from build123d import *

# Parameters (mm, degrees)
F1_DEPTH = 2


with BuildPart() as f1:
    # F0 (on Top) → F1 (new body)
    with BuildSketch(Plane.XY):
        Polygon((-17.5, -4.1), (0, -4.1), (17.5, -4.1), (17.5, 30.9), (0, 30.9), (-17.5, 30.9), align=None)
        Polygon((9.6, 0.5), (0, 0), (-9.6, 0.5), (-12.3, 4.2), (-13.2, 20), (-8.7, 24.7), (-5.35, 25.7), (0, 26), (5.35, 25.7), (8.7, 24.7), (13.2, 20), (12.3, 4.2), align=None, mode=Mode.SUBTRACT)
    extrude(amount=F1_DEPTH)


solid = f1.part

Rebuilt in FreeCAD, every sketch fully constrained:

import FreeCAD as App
import Part
import Sketcher

V = App.Vector
Q = App.Units.Quantity


def add_polygon(sketch, points):
    """Adds a closed chain of lines whose ends are joined by coincident constraints."""
    first, n = sketch.GeometryCount, len(points)
    for a, b in zip(points, points[1:] + points[:1]):
        sketch.addGeometry(Part.LineSegment(App.Vector(*a, 0), App.Vector(*b, 0)), False)
    for i in range(n):
        sketch.addConstraint(Sketcher.Constraint("Coincident", first + i, 2, first + (i + 1) % n, 1))

doc = App.newDocument("Part")
body = doc.addObject("PartDesign::Body", "Body")

sketch1 = body.newObject("Sketcher::SketchObject", "Sketch")
sketch1.AttachmentSupport = (doc.getObject("XY_Plane"), [""])
sketch1.MapMode = "FlatFace"
add_polygon(sketch1, [(-17.5, -4.1), (17.5, -4.1), (17.5, 30.9), (-17.5, 30.9)])
add_polygon(sketch1, [(12.3, 4.2), (9.6, 0.5), (0, 0), (-9.6, 0.5), (-12.3, 4.2), (-13.2, 20), (-8.7, 24.7), (-5.3, 25.7), (0, 26), (5.3, 25.7), (8.7, 24.7), (13.2, 20)])
sketch1.addConstraint(Sketcher.Constraint("Horizontal", 0))
sketch1.addConstraint(Sketcher.Constraint("Vertical", 1))
sketch1.addConstraint(Sketcher.Constraint("Horizontal", 2))
sketch1.addConstraint(Sketcher.Constraint("Vertical", 3))
sketch1.addConstraint(Sketcher.Constraint("Coincident", 5, 2, -1, 1))
sketch1.addConstraint(Sketcher.Constraint("Symmetric", 4, 2, 6, 2, -2))
sketch1.addConstraint(Sketcher.Constraint("Symmetric", 10, 2, 12, 2, -2))
sketch1.addConstraint(Sketcher.Constraint("Symmetric", 9, 2, 13, 2, -2))
sketch1.addConstraint(Sketcher.Constraint("Symmetric", 8, 2, 14, 2, -2))
sketch1.addConstraint(Sketcher.Constraint("Symmetric", 7, 2, 15, 2, -2))
sketch1.addConstraint(Sketcher.Constraint("PointOnObject", 11, 2, -2))
sketch1.addConstraint(Sketcher.Constraint("Equal", 2, 1))
sketch1.addConstraint(Sketcher.Constraint("DistanceX", 0, 1, 0, 2, Q("35 mm")))
sketch1.addConstraint(Sketcher.Constraint("DistanceY", -1, 1, 8, 2, Q("20 mm")))
sketch1.addConstraint(Sketcher.Constraint("DistanceY", -1, 1, 11, 2, Q("26 mm")))
sketch1.addConstraint(Sketcher.Constraint("DistanceY", 9, 2, 10, 2, Q("1 mm")))
sketch1.addConstraint(Sketcher.Constraint("DistanceX", -1, 1, 0, 2, Q("17.5 mm")))
sketch1.addConstraint(Sketcher.Constraint("DistanceY", 0, 2, -1, 1, Q("4.1 mm")))
sketch1.addConstraint(Sketcher.Constraint("DistanceX", -1, 1, 4, 2, Q("9.6 mm")))
sketch1.addConstraint(Sketcher.Constraint("DistanceY", -1, 1, 4, 2, Q("0.5 mm")))
sketch1.addConstraint(Sketcher.Constraint("DistanceX", 7, 2, -1, 1, Q("12.3 mm")))
sketch1.addConstraint(Sketcher.Constraint("DistanceY", -1, 1, 7, 2, Q("4.2 mm")))
sketch1.addConstraint(Sketcher.Constraint("DistanceX", 8, 2, -1, 1, Q("13.2 mm")))
sketch1.addConstraint(Sketcher.Constraint("DistanceX", 9, 2, -1, 1, Q("8.7 mm")))
sketch1.addConstraint(Sketcher.Constraint("DistanceY", -1, 1, 9, 2, Q("24.7 mm")))
sketch1.addConstraint(Sketcher.Constraint("DistanceX", 10, 2, 12, 2, Q("10.7 mm")))
pad1 = body.newObject("PartDesign::Pad", "Pad")
pad1.Profile = sketch1
pad1.Length = 2

doc.recompute()
